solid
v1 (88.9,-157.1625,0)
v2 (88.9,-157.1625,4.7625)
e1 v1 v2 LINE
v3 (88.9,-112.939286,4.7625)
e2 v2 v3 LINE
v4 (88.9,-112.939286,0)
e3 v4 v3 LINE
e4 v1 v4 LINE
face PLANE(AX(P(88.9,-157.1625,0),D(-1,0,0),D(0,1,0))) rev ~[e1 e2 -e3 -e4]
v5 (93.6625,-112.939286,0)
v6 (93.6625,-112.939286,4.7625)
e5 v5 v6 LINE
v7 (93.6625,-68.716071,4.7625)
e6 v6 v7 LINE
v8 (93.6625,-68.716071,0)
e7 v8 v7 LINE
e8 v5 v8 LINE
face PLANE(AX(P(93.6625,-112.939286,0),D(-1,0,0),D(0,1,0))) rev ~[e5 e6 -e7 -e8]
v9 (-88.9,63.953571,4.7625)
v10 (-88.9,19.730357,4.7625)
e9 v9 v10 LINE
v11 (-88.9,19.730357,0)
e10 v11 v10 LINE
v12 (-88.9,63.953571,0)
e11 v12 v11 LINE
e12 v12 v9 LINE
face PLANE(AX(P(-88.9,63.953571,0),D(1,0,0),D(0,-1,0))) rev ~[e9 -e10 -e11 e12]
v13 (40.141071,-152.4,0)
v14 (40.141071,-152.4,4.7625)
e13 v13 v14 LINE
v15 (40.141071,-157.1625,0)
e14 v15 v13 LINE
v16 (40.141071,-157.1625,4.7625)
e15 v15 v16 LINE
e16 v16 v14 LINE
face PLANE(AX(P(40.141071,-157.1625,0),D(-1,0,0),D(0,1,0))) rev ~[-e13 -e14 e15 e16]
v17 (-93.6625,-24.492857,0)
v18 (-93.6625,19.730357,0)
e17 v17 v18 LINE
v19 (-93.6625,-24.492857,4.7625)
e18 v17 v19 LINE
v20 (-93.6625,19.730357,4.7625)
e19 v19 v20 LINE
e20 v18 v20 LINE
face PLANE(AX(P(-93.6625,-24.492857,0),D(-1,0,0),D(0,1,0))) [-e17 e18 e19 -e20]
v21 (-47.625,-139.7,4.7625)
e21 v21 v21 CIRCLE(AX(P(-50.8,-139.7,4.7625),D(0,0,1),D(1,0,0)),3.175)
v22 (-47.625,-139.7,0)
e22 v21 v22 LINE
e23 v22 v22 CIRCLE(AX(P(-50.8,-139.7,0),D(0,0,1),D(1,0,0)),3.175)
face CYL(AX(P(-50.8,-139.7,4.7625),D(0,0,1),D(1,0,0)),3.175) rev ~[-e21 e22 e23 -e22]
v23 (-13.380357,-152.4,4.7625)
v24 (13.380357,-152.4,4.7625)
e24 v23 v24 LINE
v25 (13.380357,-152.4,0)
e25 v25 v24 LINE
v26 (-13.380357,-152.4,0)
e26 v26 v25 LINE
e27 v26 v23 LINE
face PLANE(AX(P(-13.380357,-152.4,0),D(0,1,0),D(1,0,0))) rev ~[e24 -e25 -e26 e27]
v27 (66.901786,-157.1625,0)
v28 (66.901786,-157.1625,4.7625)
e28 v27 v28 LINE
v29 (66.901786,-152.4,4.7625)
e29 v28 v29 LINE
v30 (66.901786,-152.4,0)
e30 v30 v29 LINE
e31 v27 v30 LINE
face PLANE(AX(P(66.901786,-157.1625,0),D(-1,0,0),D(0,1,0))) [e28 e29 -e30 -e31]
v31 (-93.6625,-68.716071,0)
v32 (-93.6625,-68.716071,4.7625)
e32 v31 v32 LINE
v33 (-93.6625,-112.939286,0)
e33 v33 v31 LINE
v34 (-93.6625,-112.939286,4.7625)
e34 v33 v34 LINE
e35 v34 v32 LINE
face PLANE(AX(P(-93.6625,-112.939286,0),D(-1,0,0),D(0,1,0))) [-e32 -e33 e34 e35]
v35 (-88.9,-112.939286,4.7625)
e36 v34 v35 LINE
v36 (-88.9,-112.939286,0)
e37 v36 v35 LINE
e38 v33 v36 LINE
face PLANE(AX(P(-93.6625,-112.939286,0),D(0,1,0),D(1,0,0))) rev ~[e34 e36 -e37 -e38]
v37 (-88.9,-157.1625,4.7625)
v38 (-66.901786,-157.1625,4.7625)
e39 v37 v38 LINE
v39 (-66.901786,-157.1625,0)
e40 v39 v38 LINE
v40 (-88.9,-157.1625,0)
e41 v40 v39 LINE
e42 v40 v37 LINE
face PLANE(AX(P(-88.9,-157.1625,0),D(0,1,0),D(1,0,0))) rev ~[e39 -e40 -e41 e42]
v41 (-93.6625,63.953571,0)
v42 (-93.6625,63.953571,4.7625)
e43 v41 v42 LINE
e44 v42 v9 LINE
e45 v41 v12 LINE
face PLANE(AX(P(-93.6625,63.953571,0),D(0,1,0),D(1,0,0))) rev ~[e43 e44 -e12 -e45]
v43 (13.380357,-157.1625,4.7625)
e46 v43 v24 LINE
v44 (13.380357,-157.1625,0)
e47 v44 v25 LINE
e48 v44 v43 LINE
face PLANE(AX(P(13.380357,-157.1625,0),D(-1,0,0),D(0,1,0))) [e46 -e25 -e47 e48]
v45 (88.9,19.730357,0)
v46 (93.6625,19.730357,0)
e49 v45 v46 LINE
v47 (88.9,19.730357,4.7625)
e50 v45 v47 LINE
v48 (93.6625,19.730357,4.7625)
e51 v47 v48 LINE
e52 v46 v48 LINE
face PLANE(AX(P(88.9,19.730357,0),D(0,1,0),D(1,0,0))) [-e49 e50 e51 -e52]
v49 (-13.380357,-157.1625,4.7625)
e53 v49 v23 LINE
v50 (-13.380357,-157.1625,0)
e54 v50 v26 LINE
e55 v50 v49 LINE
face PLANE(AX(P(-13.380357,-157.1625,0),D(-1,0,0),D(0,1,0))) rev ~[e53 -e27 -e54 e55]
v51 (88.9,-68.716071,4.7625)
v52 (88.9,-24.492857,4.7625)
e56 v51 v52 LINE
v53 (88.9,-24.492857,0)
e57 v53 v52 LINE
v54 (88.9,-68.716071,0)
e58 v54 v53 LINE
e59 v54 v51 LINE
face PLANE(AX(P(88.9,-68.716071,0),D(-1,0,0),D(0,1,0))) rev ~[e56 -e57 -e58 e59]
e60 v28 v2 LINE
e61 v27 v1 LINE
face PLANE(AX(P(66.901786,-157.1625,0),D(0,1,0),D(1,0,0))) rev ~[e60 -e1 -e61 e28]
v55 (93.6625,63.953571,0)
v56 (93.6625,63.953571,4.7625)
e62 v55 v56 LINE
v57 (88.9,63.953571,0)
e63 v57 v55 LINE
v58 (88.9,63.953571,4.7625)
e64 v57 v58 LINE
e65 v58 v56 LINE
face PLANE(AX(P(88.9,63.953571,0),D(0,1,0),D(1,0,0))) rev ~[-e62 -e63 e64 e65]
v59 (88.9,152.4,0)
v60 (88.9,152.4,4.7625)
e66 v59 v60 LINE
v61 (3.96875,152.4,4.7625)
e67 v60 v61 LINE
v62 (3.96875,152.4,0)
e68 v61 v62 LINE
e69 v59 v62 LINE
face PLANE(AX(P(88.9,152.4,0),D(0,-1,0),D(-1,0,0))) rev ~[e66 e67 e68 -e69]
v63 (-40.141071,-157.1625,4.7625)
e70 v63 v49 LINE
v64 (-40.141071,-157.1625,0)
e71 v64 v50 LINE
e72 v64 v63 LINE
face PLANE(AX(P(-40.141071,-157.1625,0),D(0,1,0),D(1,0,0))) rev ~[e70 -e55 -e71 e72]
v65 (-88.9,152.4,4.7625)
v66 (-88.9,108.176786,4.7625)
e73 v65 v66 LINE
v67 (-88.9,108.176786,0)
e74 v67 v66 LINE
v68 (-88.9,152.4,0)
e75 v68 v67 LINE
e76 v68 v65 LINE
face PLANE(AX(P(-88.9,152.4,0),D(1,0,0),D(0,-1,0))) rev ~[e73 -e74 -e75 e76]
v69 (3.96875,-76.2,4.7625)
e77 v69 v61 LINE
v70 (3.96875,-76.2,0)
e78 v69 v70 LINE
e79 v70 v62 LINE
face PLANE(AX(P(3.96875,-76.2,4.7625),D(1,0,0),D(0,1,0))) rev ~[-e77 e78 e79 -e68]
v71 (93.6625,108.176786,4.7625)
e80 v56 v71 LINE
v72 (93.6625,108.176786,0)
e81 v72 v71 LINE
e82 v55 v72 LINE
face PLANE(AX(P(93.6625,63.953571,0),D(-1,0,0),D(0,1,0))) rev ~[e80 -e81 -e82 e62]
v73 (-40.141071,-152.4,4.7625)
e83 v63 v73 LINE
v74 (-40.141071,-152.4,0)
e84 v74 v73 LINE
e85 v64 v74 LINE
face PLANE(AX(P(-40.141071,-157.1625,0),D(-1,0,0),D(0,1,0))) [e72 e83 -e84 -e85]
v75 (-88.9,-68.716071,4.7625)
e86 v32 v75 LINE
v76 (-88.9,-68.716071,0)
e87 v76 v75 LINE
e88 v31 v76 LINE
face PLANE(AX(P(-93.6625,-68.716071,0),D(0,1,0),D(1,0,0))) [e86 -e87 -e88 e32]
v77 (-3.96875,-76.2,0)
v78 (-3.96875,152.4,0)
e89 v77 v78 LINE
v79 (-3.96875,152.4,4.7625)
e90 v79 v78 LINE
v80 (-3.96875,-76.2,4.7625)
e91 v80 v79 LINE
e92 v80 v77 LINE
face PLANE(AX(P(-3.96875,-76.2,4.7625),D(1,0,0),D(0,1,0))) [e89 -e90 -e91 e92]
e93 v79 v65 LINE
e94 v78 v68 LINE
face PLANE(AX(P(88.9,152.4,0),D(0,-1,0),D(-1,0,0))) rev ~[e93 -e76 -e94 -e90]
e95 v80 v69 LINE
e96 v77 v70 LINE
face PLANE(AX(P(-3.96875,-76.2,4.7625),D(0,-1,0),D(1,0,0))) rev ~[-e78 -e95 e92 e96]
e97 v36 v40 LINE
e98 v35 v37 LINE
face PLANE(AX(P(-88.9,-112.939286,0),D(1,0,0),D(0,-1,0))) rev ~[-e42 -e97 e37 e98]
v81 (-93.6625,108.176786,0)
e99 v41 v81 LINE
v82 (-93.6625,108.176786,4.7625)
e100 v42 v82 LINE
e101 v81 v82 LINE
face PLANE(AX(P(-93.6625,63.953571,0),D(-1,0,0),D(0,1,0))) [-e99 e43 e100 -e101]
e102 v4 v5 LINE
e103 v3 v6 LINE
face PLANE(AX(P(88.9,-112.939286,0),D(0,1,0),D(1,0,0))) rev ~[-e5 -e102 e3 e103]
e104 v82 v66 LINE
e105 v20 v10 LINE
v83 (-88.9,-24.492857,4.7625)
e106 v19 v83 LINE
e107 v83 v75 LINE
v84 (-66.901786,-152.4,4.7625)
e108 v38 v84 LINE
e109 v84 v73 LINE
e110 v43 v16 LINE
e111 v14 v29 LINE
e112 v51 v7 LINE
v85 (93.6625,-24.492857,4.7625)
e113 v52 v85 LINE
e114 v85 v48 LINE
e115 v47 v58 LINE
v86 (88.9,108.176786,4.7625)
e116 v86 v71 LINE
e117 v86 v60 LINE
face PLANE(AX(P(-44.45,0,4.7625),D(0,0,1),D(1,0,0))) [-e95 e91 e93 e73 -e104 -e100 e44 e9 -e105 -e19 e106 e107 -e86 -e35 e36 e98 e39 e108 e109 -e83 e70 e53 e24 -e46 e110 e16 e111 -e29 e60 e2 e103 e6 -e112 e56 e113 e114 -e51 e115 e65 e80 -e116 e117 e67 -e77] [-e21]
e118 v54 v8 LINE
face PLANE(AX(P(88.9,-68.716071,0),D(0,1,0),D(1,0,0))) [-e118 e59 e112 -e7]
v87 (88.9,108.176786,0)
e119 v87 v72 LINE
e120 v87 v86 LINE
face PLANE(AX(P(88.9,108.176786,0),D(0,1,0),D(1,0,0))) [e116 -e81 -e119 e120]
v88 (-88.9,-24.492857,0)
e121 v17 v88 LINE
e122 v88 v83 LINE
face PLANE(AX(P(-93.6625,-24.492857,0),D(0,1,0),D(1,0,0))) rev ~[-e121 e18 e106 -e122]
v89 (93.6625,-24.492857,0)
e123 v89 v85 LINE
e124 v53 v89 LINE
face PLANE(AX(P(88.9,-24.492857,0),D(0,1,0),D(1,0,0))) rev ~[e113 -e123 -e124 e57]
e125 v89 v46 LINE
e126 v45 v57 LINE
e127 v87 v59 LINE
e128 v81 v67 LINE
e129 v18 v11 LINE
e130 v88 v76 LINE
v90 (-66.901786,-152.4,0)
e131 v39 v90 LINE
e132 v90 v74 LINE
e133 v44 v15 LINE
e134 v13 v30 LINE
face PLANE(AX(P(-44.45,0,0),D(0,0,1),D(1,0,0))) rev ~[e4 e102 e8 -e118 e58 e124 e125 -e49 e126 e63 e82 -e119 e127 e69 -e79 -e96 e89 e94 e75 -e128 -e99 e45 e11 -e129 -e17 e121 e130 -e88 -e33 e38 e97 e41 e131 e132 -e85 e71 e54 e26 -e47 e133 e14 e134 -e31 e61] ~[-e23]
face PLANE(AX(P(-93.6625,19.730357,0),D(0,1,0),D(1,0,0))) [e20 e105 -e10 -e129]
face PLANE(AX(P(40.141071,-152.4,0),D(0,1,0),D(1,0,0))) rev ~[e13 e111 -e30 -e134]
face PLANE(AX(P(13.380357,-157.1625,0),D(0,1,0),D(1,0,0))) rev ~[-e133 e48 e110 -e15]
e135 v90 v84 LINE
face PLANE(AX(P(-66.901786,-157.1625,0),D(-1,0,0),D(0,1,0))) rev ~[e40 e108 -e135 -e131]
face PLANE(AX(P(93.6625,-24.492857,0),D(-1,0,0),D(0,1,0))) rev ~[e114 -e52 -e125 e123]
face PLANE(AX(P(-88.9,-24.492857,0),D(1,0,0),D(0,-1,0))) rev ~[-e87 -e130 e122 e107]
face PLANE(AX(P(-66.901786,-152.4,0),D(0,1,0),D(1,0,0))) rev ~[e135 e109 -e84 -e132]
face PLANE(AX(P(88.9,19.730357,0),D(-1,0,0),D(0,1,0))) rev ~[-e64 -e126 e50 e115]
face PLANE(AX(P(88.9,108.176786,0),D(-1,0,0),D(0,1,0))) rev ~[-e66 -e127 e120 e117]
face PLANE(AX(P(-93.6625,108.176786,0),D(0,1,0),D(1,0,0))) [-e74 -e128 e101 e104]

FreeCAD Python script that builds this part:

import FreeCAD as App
import Part
import Sketcher

V = App.Vector
Q = App.Units.Quantity


def add_polygon(sketch, points):
    """Adds a closed chain of lines whose ends are joined by coincident constraints."""
    first, n = sketch.GeometryCount, len(points)
    for a, b in zip(points, points[1:] + points[:1]):
        sketch.addGeometry(Part.LineSegment(App.Vector(*a, 0), App.Vector(*b, 0)), False)
    for i in range(n):
        sketch.addConstraint(Sketcher.Constraint("Coincident", first + i, 2, first + (i + 1) % n, 1))

doc = App.newDocument("Part")
body = doc.addObject("PartDesign::Body", "Body")

sketch1 = doc.addObject("Sketcher::SketchObject", "Sketch")
body.addObject(sketch1)
sketch1.AttachmentSupport = (doc.XY_Plane, [""])
sketch1.MapMode = "FlatFace"
add_polygon(sketch1, [(-88.9, 152.4), (-88.9, 108.176786), (-93.6625, 108.176786), (-93.6625, 63.953571), (-88.9, 63.953571), (-88.9, 19.730357), (-93.6625, 19.730357), (-93.6625, -24.492857), (-88.9, -24.492857), (-88.9, -68.716071), (-93.6625, -68.716071), (-93.6625, -112.939286), (-88.9, -112.939286), (-88.9, -157.1625), (-66.901786, -157.1625), (-66.901786, -152.4), (-40.141071, -152.4), (-40.141071, -157.1625), (-13.380357, -157.1625), (-13.380357, -152.4), (13.380357, -152.4), (13.380357, -157.1625), (40.141071, -157.1625), (40.141071, -152.4), (66.901786, -152.4), (66.901786, -157.1625), (88.9, -157.1625), (88.9, -112.939286), (93.6625, -112.939286), (93.6625, -68.716071), (88.9, -68.716071), (88.9, -24.492857), (93.6625, -24.492857), (93.6625, 19.730357), (88.9, 19.730357), (88.9, 63.953571), (93.6625, 63.953571), (93.6625, 108.176786), (88.9, 108.176786), (88.9, 152.4)])
sketch1.addConstraint([
    Sketcher.Constraint("Vertical", 0),
    Sketcher.Constraint("Horizontal", 1),
    Sketcher.Constraint("Vertical", 2),
    Sketcher.Constraint("Horizontal", 3),
    Sketcher.Constraint("Vertical", 4),
    Sketcher.Constraint("Horizontal", 5),
    Sketcher.Constraint("Vertical", 6),
    Sketcher.Constraint("Horizontal", 7),
    Sketcher.Constraint("Vertical", 8),
    Sketcher.Constraint("Horizontal", 9),
    Sketcher.Constraint("Vertical", 10),
    Sketcher.Constraint("Horizontal", 11),
    Sketcher.Constraint("Vertical", 12),
    Sketcher.Constraint("Horizontal", 13),
    Sketcher.Constraint("Vertical", 14),
    Sketcher.Constraint("Horizontal", 15),
    Sketcher.Constraint("Vertical", 16),
    Sketcher.Constraint("Horizontal", 17),
    Sketcher.Constraint("Vertical", 18),
    Sketcher.Constraint("Horizontal", 19),
    Sketcher.Constraint("Vertical", 20),
    Sketcher.Constraint("Horizontal", 21),
    Sketcher.Constraint("Vertical", 22),
    Sketcher.Constraint("Horizontal", 23),
    Sketcher.Constraint("Vertical", 24),
    Sketcher.Constraint("Horizontal", 25),
    Sketcher.Constraint("Vertical", 26),
    Sketcher.Constraint("Horizontal", 27),
    Sketcher.Constraint("Vertical", 28),
    Sketcher.Constraint("Horizontal", 29),
    Sketcher.Constraint("Vertical", 30),
    Sketcher.Constraint("Horizontal", 31),
    Sketcher.Constraint("Vertical", 32),
    Sketcher.Constraint("Horizontal", 33),
    Sketcher.Constraint("Vertical", 34),
    Sketcher.Constraint("Horizontal", 35),
    Sketcher.Constraint("Vertical", 36),
    Sketcher.Constraint("Horizontal", 37),
    Sketcher.Constraint("Vertical", 38),
    Sketcher.Constraint("Horizontal", 39),
    Sketcher.Constraint("Symmetric", 17, 2, 20, 2, -2),
    Sketcher.Constraint("Symmetric", 15, 2, 22, 2, -2),
    Sketcher.Constraint("Symmetric", 13, 2, 24, 2, -2),
    Sketcher.Constraint("Symmetric", 11, 2, 26, 2, -2),
    Sketcher.Constraint("Symmetric", 9, 2, 28, 2, -2),
    Sketcher.Constraint("Symmetric", 7, 2, 30, 2, -2),
    Sketcher.Constraint("Symmetric", 5, 2, 32, 2, -2),
    Sketcher.Constraint("Symmetric", 3, 2, 34, 2, -2),
    Sketcher.Constraint("Symmetric", 1, 2, 36, 2, -2),
    Sketcher.Constraint("Horizontal", 13, 2, 16, 2),
    Sketcher.Constraint("Horizontal", 15, 2, 18, 2),
    Sketcher.Constraint("Vertical", 0, 2, 3, 2),
    Sketcher.Constraint("Vertical", 2, 2, 5, 2),
    Sketcher.Constraint("Vertical", 4, 2, 7, 2),
    Sketcher.Constraint("Vertical", 6, 2, 9, 2),
    Sketcher.Constraint("Vertical", 8, 2, 11, 2),
    Sketcher.Constraint("Vertical", 34, 2, 37, 2),
    Sketcher.Constraint("Equal", 15, 17),
    Sketcher.Constraint("Equal", 17, 19),
    Sketcher.Constraint("Equal", 0, 2),
    Sketcher.Constraint("Equal", 2, 4),
    Sketcher.Constraint("Equal", 4, 6),
    Sketcher.Constraint("Equal", 6, 8),
    Sketcher.Constraint("Equal", 8, 10),
    Sketcher.Constraint("Equal", 10, 12),
    Sketcher.Constraint("Equal", 37, 14),
    Sketcher.Constraint("DistanceX", 39, 2, 39, 1, Q("7 in")),
    Sketcher.Constraint("DistanceY", 14, 2, -1, 1, Q("6 in")),
    Sketcher.Constraint("DistanceY", -1, 1, 38, 2, Q("6 in")),
    Sketcher.Constraint("DistanceX", 1, 2, 1, 1, Q("0.1875 in")),
    Sketcher.Constraint("DistanceX", 13, 1, 13, 2, 21.998214),
])
pad1 = doc.addObject("PartDesign::Pad", "Pad")
body.addObject(pad1)
pad1.Profile = sketch1
pad1.Length = Q("0.1875 in")

sketch2 = doc.addObject("Sketcher::SketchObject", "Sketch001")
body.addObject(sketch2)
sketch2.AttachmentSupport = (doc.XY_Plane, [""])
sketch2.MapMode = "FlatFace"
sketch2.AttachmentOffset = App.Placement(V(0, 0, 0.1875 * 25.4), App.Rotation())
add_polygon(sketch2, [(-3.96875, 152.4), (-3.96875, -76.2), (3.96875, -76.2), (3.96875, 152.4)])
sketch2.addConstraint([
    Sketcher.Constraint("Vertical", 0),
    Sketcher.Constraint("Horizontal", 1),
    Sketcher.Constraint("Vertical", 2),
    Sketcher.Constraint("Horizontal", 3),
    Sketcher.Constraint("DistanceY", 0, 2, 0, 1, Q("9 in")),
    Sketcher.Constraint("DistanceY", 0, 2, -1, 1, Q("3 in")),
    Sketcher.Constraint("DistanceX", 1, 1, 1, 2, Q("0.3125 in")),
    Sketcher.Constraint("DistanceX", 0, 2, -1, 1, Q("0.15625 in")),
])
pocket1 = doc.addObject("PartDesign::Pocket", "Pocket")
body.addObject(pocket1)
pocket1.Profile = sketch2
pocket1.Type = "ThroughAll"

sketch3 = doc.addObject("Sketcher::SketchObject", "Sketch002")
body.addObject(sketch3)
sketch3.AttachmentSupport = (doc.XY_Plane, [""])
sketch3.MapMode = "FlatFace"
sketch3.AttachmentOffset = App.Placement(V(0, 0, 0.1875 * 25.4), App.Rotation())
sketch3.addGeometry(Part.Circle(V(-50.8, -139.7, 0), V(0, 0, 1), 3.175), False)
sketch3.addConstraint([
    Sketcher.Constraint("Diameter", 0, Q("0.25 in")),
    Sketcher.Constraint("DistanceX", 0, 3, -1, 1, Q("2 in")),
    Sketcher.Constraint("DistanceY", 0, 3, -1, 1, Q("5.5 in")),
])
pocket2 = doc.addObject("PartDesign::Pocket", "Pocket001")
body.addObject(pocket2)
pocket2.Profile = sketch3
pocket2.Type = "ThroughAll"

doc.recompute()
